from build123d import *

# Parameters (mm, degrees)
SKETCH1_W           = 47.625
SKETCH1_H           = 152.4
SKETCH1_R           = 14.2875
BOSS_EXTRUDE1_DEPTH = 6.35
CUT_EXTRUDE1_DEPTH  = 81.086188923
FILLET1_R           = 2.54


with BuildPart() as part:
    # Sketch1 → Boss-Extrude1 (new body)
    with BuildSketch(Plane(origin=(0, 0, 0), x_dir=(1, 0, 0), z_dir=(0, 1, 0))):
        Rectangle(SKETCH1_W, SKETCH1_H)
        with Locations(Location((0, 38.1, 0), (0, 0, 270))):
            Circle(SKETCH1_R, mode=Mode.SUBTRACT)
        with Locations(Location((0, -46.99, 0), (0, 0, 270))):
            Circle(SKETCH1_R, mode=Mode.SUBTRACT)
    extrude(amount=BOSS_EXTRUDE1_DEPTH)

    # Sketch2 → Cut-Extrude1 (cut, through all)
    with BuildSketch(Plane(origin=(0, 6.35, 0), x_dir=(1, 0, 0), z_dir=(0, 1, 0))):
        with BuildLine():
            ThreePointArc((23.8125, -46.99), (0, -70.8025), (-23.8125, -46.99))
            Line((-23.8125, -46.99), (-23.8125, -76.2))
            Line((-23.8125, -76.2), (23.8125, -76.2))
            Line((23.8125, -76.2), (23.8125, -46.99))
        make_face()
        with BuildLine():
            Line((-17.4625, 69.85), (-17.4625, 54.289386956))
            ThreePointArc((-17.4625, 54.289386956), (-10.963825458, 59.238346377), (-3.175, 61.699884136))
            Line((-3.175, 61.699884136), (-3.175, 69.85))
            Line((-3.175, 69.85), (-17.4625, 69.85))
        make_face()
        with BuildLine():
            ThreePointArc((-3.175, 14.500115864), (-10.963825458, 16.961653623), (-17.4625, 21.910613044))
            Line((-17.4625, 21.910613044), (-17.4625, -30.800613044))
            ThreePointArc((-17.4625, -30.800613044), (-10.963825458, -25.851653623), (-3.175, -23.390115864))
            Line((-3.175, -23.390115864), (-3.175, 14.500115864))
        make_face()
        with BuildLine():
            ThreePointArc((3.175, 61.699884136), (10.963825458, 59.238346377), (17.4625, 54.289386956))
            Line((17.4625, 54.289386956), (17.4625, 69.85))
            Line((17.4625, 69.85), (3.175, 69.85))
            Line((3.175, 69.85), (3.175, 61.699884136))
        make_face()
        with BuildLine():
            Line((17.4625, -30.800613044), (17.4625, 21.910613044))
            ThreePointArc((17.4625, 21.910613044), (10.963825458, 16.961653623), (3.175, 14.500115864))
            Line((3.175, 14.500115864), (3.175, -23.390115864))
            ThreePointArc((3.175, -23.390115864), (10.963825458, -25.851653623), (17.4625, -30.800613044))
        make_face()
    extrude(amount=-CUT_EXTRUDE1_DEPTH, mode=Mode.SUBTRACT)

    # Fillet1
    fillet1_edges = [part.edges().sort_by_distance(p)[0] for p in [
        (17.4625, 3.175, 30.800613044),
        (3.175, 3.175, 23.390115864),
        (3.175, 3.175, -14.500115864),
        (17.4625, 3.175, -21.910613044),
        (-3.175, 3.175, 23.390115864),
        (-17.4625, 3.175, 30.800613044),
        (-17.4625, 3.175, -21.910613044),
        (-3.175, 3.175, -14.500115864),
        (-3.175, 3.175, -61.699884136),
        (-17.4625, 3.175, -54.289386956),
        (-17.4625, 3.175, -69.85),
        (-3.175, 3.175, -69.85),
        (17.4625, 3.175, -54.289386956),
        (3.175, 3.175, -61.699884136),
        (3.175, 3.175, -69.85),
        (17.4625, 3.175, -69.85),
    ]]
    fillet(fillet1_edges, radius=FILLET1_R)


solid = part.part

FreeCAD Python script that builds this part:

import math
import FreeCAD as App
import Part
import Sketcher
Q = App.Units.Quantity


def edges_at(feature, points):
    """Names of the edges that pass closest to the given points."""
    edges = feature.Shape.Edges
    near = lambda p: min(range(len(edges)), key=lambda i: edges[i].distToShape(Part.Vertex(*p))[0])
    return sorted({f"Edge{near(p) + 1}" for p in points})


def add_polygon(sketch, points):
    """Adds a closed chain of lines whose ends are joined by coincident constraints."""
    first, n = sketch.GeometryCount, len(points)
    for a, b in zip(points, points[1:] + points[:1]):
        sketch.addGeometry(Part.LineSegment(App.Vector(*a, 0), App.Vector(*b, 0)), False)
    for i in range(n):
        sketch.addConstraint(Sketcher.Constraint("Coincident", first + i, 2, first + (i + 1) % n, 1))

doc = App.newDocument("Part")
body = doc.addObject("PartDesign::Body", "Body")

# Sketch on XZ plane
sketch1 = body.newObject("Sketcher::SketchObject", "Sketch")
sketch1.AttachmentSupport = (doc.getObject("XZ_Plane"), [""])
sketch1.MapMode = "FlatFace"
add_polygon(sketch1, [(-24, -76), (-24, 76), (24, 76), (24, -76)])  # lines 0-3
sketch1.addGeometry(Part.Circle(App.Vector(0, 47, 0), App.Vector(0, 0, 1), 14), False)  # 4
sketch1.addGeometry(Part.Circle(App.Vector(0, -38, 0), App.Vector(0, 0, 1), 14), False)  # 5
sketch1.addConstraint([
    Sketcher.Constraint("Vertical", 0),
    Sketcher.Constraint("Horizontal", 1),
    Sketcher.Constraint("Vertical", 2),
    Sketcher.Constraint("Horizontal", 3),
    Sketcher.Constraint("Equal", 4, 5),
    Sketcher.Constraint("Symmetric", 0, 2, 2, 2, -1, 1),
    Sketcher.Constraint("PointOnObject", 4, 3, -2),
    Sketcher.Constraint("PointOnObject", 5, 3, -2),
    Sketcher.Constraint("DistanceY", 0, 1, 0, 2, Q("6 in")),
    Sketcher.Constraint("Diameter", 4, Q("1.125 in")),
    Sketcher.Constraint("DistanceY", 5, 3, -1, 1, Q("1.5 in")),
    Sketcher.Constraint("DistanceX", 1, 1, 1, 2, Q("1.875 in")),
    Sketcher.Constraint("DistanceY", -1, 1, 4, 3, Q("1.85 in")),
])
pad1 = body.newObject("PartDesign::Pad", "Pad")
pad1.Profile = sketch1
pad1.Length = Q("0.25 in")
pad1.Reversed = True

# Sketch on XZ plane
sketch2 = body.newObject("Sketcher::SketchObject", "Sketch001")
sketch2.AttachmentSupport = (doc.getObject("XZ_Plane"), [""])
sketch2.MapMode = "FlatFace"
sketch2.AttachmentOffset = App.Placement(App.Vector(0, 0, -0.25 * 25.4), App.Rotation())
sketch2.addGeometry([
    Part.ArcOfCircle(Part.Circle(App.Vector(0, 47, 0), App.Vector(0, 0, 1), 24), math.radians(0), math.radians(180)),  # 0
    Part.LineSegment(App.Vector(-24, 47, 0), App.Vector(-24, 76, 0)),  # 1
    Part.LineSegment(App.Vector(-24, 76, 0), App.Vector(24, 76, 0)),  # 2
    Part.LineSegment(App.Vector(24, 76, 0), App.Vector(24, 47, 0)),  # 3
    Part.LineSegment(App.Vector(-17, -70, 0), App.Vector(-17, -54, 0)),  # 4
    Part.ArcOfCircle(Part.Circle(App.Vector(0, -38, 0), App.Vector(0, 0, 1), 24), math.radians(-137), math.radians(-98)),  # 5
    Part.LineSegment(App.Vector(-3, -62, 0), App.Vector(-3, -70, 0)),  # 6
    Part.LineSegment(App.Vector(-3, -70, 0), App.Vector(-17, -70, 0)),  # 7
    Part.ArcOfCircle(Part.Circle(App.Vector(0, -38, 0), App.Vector(0, 0, 1), 24), math.radians(98), math.radians(137)),  # 8
    Part.LineSegment(App.Vector(-17, -22, 0), App.Vector(-17, 31, 0)),  # 9
    Part.ArcOfCircle(Part.Circle(App.Vector(0, 47, 0), App.Vector(0, 0, 1), 24), math.radians(-137), math.radians(-98)),  # 10
    Part.LineSegment(App.Vector(-3, 23, 0), App.Vector(-3, -15, 0)),  # 11
    Part.ArcOfCircle(Part.Circle(App.Vector(0, -38, 0), App.Vector(0, 0, 1), 24), math.radians(-82), math.radians(-43)),  # 12
    Part.LineSegment(App.Vector(17, -54, 0), App.Vector(17, -70, 0)),  # 13
    Part.LineSegment(App.Vector(17, -70, 0), App.Vector(3, -70, 0)),  # 14
    Part.LineSegment(App.Vector(3, -70, 0), App.Vector(3, -62, 0)),  # 15
    Part.LineSegment(App.Vector(17, 31, 0), App.Vector(17, -22, 0)),  # 16
    Part.ArcOfCircle(Part.Circle(App.Vector(0, -38, 0), App.Vector(0, 0, 1), 24), math.radians(43), math.radians(82)),  # 17
    Part.LineSegment(App.Vector(3, -15, 0), App.Vector(3, 23, 0)),  # 18
    Part.ArcOfCircle(Part.Circle(App.Vector(0, 47, 0), App.Vector(0, 0, 1), 24), math.radians(-82), math.radians(-43)),  # 19
], False)
sketch2.addConstraint([
    Sketcher.Constraint("Tangent", 0, 2, 1, 1),
    Sketcher.Constraint("Coincident", 1, 2, 2, 1),
    Sketcher.Constraint("Coincident", 2, 2, 3, 1),
    Sketcher.Constraint("Tangent", 3, 2, 0, 1),
    Sketcher.Constraint("Coincident", 4, 2, 5, 1),
    Sketcher.Constraint("Coincident", 5, 2, 6, 1),
    Sketcher.Constraint("Coincident", 6, 2, 7, 1),
    Sketcher.Constraint("Coincident", 7, 2, 4, 1),
    Sketcher.Constraint("Coincident", 8, 2, 9, 1),
    Sketcher.Constraint("Coincident", 9, 2, 10, 1),
    Sketcher.Constraint("Coincident", 10, 2, 11, 1),
    Sketcher.Constraint("Coincident", 11, 2, 8, 1),
    Sketcher.Constraint("Coincident", 12, 2, 13, 1),
    Sketcher.Constraint("Coincident", 13, 2, 14, 1),
    Sketcher.Constraint("Coincident", 14, 2, 15, 1),
    Sketcher.Constraint("Coincident", 15, 2, 12, 1),
    Sketcher.Constraint("Coincident", 16, 2, 17, 1),
    Sketcher.Constraint("Coincident", 17, 2, 18, 1),
    Sketcher.Constraint("Coincident", 18, 2, 19, 1),
    Sketcher.Constraint("Coincident", 19, 2, 16, 1),
    Sketcher.Constraint("Vertical", 1),
    Sketcher.Constraint("Horizontal", 2),
    Sketcher.Constraint("Vertical", 3),
    Sketcher.Constraint("Vertical", 4),
    Sketcher.Constraint("Vertical", 6),
    Sketcher.Constraint("Horizontal", 7),
    Sketcher.Constraint("Vertical", 9),
    Sketcher.Constraint("Vertical", 11),
    Sketcher.Constraint("Vertical", 13),
    Sketcher.Constraint("Horizontal", 14),
    Sketcher.Constraint("Vertical", 15),
    Sketcher.Constraint("Vertical", 16),
    Sketcher.Constraint("Vertical", 18),
    Sketcher.Constraint("Coincident", 8, 3, 5, 3),
    Sketcher.Constraint("Coincident", 10, 3, 0, 3),
    Sketcher.Constraint("Coincident", 12, 3, 5, 3),
    Sketcher.Constraint("Coincident", 17, 3, 5, 3),
    Sketcher.Constraint("Coincident", 19, 3, 0, 3),
    Sketcher.Constraint("Equal", 0, 5),
    Sketcher.Constraint("Equal", 5, 8),
    Sketcher.Constraint("Equal", 8, 10),
    Sketcher.Constraint("Equal", 10, 12),
    Sketcher.Constraint("Equal", 12, 17),
    Sketcher.Constraint("Equal", 17, 19),
    Sketcher.Constraint("Symmetric", 4, 2, 12, 2, -2),
    Sketcher.Constraint("Symmetric", 6, 2, 14, 2, -2),
    Sketcher.Constraint("Symmetric", 10, 2, 18, 2, -2),
    Sketcher.Constraint("Horizontal", 8, 2, 16, 2),
    Sketcher.Constraint("Vertical", 7, 2, 8, 2),
    Sketcher.Constraint("Vertical", 6, 2, 10, 2),
    Sketcher.Constraint("DistanceY", -1, 1, 1, 2, Q("3 in")),
    Sketcher.Constraint("Radius", 0, Q("0.9375 in")),
    Sketcher.Constraint("DistanceY", 1, 1, 1, 2, Q("1.15 in")),
    Sketcher.Constraint("DistanceY", 5, 3, -1, 1, Q("1.5 in")),
    Sketcher.Constraint("DistanceX", 7, 2, 7, 1, Q("0.5625 in")),
    Sketcher.Constraint("DistanceY", 6, 2, -1, 1, Q("2.75 in")),
    Sketcher.Constraint("DistanceX", 0, 2, 4, 2, Q("0.25 in")),
])
pocket1 = body.newObject("PartDesign::Pocket", "Pocket")
pocket1.Profile = sketch2
pocket1.Type = "ThroughAll"
pocket1.Reversed = True
doc.recompute()

fillet = body.newObject("PartDesign::Fillet", "Fillet")
fillet.Base = (pocket1, edges_at(pocket1, [
    (17.462, 3.175, 30.801),
    (3.175, 3.175, 23.39),
    (3.175, 3.175, -14.5),
    (17.462, 3.175, -21.911),
    (-3.175, 3.175, 23.39),
    (-17.462, 3.175, 30.801),
    (-17.462, 3.175, -21.911),
    (-3.175, 3.175, -14.5),
    (-3.175, 3.175, -61.7),
    (-17.462, 3.175, -54.289),
    (-17.462, 3.175, -69.85),
    (-3.175, 3.175, -69.85),
    (17.462, 3.175, -54.289),
    (3.175, 3.175, -61.7),
    (3.175, 3.175, -69.85),
    (17.462, 3.175, -69.85),
]))
fillet.Radius = Q("0.1 in")

doc.recompute()
